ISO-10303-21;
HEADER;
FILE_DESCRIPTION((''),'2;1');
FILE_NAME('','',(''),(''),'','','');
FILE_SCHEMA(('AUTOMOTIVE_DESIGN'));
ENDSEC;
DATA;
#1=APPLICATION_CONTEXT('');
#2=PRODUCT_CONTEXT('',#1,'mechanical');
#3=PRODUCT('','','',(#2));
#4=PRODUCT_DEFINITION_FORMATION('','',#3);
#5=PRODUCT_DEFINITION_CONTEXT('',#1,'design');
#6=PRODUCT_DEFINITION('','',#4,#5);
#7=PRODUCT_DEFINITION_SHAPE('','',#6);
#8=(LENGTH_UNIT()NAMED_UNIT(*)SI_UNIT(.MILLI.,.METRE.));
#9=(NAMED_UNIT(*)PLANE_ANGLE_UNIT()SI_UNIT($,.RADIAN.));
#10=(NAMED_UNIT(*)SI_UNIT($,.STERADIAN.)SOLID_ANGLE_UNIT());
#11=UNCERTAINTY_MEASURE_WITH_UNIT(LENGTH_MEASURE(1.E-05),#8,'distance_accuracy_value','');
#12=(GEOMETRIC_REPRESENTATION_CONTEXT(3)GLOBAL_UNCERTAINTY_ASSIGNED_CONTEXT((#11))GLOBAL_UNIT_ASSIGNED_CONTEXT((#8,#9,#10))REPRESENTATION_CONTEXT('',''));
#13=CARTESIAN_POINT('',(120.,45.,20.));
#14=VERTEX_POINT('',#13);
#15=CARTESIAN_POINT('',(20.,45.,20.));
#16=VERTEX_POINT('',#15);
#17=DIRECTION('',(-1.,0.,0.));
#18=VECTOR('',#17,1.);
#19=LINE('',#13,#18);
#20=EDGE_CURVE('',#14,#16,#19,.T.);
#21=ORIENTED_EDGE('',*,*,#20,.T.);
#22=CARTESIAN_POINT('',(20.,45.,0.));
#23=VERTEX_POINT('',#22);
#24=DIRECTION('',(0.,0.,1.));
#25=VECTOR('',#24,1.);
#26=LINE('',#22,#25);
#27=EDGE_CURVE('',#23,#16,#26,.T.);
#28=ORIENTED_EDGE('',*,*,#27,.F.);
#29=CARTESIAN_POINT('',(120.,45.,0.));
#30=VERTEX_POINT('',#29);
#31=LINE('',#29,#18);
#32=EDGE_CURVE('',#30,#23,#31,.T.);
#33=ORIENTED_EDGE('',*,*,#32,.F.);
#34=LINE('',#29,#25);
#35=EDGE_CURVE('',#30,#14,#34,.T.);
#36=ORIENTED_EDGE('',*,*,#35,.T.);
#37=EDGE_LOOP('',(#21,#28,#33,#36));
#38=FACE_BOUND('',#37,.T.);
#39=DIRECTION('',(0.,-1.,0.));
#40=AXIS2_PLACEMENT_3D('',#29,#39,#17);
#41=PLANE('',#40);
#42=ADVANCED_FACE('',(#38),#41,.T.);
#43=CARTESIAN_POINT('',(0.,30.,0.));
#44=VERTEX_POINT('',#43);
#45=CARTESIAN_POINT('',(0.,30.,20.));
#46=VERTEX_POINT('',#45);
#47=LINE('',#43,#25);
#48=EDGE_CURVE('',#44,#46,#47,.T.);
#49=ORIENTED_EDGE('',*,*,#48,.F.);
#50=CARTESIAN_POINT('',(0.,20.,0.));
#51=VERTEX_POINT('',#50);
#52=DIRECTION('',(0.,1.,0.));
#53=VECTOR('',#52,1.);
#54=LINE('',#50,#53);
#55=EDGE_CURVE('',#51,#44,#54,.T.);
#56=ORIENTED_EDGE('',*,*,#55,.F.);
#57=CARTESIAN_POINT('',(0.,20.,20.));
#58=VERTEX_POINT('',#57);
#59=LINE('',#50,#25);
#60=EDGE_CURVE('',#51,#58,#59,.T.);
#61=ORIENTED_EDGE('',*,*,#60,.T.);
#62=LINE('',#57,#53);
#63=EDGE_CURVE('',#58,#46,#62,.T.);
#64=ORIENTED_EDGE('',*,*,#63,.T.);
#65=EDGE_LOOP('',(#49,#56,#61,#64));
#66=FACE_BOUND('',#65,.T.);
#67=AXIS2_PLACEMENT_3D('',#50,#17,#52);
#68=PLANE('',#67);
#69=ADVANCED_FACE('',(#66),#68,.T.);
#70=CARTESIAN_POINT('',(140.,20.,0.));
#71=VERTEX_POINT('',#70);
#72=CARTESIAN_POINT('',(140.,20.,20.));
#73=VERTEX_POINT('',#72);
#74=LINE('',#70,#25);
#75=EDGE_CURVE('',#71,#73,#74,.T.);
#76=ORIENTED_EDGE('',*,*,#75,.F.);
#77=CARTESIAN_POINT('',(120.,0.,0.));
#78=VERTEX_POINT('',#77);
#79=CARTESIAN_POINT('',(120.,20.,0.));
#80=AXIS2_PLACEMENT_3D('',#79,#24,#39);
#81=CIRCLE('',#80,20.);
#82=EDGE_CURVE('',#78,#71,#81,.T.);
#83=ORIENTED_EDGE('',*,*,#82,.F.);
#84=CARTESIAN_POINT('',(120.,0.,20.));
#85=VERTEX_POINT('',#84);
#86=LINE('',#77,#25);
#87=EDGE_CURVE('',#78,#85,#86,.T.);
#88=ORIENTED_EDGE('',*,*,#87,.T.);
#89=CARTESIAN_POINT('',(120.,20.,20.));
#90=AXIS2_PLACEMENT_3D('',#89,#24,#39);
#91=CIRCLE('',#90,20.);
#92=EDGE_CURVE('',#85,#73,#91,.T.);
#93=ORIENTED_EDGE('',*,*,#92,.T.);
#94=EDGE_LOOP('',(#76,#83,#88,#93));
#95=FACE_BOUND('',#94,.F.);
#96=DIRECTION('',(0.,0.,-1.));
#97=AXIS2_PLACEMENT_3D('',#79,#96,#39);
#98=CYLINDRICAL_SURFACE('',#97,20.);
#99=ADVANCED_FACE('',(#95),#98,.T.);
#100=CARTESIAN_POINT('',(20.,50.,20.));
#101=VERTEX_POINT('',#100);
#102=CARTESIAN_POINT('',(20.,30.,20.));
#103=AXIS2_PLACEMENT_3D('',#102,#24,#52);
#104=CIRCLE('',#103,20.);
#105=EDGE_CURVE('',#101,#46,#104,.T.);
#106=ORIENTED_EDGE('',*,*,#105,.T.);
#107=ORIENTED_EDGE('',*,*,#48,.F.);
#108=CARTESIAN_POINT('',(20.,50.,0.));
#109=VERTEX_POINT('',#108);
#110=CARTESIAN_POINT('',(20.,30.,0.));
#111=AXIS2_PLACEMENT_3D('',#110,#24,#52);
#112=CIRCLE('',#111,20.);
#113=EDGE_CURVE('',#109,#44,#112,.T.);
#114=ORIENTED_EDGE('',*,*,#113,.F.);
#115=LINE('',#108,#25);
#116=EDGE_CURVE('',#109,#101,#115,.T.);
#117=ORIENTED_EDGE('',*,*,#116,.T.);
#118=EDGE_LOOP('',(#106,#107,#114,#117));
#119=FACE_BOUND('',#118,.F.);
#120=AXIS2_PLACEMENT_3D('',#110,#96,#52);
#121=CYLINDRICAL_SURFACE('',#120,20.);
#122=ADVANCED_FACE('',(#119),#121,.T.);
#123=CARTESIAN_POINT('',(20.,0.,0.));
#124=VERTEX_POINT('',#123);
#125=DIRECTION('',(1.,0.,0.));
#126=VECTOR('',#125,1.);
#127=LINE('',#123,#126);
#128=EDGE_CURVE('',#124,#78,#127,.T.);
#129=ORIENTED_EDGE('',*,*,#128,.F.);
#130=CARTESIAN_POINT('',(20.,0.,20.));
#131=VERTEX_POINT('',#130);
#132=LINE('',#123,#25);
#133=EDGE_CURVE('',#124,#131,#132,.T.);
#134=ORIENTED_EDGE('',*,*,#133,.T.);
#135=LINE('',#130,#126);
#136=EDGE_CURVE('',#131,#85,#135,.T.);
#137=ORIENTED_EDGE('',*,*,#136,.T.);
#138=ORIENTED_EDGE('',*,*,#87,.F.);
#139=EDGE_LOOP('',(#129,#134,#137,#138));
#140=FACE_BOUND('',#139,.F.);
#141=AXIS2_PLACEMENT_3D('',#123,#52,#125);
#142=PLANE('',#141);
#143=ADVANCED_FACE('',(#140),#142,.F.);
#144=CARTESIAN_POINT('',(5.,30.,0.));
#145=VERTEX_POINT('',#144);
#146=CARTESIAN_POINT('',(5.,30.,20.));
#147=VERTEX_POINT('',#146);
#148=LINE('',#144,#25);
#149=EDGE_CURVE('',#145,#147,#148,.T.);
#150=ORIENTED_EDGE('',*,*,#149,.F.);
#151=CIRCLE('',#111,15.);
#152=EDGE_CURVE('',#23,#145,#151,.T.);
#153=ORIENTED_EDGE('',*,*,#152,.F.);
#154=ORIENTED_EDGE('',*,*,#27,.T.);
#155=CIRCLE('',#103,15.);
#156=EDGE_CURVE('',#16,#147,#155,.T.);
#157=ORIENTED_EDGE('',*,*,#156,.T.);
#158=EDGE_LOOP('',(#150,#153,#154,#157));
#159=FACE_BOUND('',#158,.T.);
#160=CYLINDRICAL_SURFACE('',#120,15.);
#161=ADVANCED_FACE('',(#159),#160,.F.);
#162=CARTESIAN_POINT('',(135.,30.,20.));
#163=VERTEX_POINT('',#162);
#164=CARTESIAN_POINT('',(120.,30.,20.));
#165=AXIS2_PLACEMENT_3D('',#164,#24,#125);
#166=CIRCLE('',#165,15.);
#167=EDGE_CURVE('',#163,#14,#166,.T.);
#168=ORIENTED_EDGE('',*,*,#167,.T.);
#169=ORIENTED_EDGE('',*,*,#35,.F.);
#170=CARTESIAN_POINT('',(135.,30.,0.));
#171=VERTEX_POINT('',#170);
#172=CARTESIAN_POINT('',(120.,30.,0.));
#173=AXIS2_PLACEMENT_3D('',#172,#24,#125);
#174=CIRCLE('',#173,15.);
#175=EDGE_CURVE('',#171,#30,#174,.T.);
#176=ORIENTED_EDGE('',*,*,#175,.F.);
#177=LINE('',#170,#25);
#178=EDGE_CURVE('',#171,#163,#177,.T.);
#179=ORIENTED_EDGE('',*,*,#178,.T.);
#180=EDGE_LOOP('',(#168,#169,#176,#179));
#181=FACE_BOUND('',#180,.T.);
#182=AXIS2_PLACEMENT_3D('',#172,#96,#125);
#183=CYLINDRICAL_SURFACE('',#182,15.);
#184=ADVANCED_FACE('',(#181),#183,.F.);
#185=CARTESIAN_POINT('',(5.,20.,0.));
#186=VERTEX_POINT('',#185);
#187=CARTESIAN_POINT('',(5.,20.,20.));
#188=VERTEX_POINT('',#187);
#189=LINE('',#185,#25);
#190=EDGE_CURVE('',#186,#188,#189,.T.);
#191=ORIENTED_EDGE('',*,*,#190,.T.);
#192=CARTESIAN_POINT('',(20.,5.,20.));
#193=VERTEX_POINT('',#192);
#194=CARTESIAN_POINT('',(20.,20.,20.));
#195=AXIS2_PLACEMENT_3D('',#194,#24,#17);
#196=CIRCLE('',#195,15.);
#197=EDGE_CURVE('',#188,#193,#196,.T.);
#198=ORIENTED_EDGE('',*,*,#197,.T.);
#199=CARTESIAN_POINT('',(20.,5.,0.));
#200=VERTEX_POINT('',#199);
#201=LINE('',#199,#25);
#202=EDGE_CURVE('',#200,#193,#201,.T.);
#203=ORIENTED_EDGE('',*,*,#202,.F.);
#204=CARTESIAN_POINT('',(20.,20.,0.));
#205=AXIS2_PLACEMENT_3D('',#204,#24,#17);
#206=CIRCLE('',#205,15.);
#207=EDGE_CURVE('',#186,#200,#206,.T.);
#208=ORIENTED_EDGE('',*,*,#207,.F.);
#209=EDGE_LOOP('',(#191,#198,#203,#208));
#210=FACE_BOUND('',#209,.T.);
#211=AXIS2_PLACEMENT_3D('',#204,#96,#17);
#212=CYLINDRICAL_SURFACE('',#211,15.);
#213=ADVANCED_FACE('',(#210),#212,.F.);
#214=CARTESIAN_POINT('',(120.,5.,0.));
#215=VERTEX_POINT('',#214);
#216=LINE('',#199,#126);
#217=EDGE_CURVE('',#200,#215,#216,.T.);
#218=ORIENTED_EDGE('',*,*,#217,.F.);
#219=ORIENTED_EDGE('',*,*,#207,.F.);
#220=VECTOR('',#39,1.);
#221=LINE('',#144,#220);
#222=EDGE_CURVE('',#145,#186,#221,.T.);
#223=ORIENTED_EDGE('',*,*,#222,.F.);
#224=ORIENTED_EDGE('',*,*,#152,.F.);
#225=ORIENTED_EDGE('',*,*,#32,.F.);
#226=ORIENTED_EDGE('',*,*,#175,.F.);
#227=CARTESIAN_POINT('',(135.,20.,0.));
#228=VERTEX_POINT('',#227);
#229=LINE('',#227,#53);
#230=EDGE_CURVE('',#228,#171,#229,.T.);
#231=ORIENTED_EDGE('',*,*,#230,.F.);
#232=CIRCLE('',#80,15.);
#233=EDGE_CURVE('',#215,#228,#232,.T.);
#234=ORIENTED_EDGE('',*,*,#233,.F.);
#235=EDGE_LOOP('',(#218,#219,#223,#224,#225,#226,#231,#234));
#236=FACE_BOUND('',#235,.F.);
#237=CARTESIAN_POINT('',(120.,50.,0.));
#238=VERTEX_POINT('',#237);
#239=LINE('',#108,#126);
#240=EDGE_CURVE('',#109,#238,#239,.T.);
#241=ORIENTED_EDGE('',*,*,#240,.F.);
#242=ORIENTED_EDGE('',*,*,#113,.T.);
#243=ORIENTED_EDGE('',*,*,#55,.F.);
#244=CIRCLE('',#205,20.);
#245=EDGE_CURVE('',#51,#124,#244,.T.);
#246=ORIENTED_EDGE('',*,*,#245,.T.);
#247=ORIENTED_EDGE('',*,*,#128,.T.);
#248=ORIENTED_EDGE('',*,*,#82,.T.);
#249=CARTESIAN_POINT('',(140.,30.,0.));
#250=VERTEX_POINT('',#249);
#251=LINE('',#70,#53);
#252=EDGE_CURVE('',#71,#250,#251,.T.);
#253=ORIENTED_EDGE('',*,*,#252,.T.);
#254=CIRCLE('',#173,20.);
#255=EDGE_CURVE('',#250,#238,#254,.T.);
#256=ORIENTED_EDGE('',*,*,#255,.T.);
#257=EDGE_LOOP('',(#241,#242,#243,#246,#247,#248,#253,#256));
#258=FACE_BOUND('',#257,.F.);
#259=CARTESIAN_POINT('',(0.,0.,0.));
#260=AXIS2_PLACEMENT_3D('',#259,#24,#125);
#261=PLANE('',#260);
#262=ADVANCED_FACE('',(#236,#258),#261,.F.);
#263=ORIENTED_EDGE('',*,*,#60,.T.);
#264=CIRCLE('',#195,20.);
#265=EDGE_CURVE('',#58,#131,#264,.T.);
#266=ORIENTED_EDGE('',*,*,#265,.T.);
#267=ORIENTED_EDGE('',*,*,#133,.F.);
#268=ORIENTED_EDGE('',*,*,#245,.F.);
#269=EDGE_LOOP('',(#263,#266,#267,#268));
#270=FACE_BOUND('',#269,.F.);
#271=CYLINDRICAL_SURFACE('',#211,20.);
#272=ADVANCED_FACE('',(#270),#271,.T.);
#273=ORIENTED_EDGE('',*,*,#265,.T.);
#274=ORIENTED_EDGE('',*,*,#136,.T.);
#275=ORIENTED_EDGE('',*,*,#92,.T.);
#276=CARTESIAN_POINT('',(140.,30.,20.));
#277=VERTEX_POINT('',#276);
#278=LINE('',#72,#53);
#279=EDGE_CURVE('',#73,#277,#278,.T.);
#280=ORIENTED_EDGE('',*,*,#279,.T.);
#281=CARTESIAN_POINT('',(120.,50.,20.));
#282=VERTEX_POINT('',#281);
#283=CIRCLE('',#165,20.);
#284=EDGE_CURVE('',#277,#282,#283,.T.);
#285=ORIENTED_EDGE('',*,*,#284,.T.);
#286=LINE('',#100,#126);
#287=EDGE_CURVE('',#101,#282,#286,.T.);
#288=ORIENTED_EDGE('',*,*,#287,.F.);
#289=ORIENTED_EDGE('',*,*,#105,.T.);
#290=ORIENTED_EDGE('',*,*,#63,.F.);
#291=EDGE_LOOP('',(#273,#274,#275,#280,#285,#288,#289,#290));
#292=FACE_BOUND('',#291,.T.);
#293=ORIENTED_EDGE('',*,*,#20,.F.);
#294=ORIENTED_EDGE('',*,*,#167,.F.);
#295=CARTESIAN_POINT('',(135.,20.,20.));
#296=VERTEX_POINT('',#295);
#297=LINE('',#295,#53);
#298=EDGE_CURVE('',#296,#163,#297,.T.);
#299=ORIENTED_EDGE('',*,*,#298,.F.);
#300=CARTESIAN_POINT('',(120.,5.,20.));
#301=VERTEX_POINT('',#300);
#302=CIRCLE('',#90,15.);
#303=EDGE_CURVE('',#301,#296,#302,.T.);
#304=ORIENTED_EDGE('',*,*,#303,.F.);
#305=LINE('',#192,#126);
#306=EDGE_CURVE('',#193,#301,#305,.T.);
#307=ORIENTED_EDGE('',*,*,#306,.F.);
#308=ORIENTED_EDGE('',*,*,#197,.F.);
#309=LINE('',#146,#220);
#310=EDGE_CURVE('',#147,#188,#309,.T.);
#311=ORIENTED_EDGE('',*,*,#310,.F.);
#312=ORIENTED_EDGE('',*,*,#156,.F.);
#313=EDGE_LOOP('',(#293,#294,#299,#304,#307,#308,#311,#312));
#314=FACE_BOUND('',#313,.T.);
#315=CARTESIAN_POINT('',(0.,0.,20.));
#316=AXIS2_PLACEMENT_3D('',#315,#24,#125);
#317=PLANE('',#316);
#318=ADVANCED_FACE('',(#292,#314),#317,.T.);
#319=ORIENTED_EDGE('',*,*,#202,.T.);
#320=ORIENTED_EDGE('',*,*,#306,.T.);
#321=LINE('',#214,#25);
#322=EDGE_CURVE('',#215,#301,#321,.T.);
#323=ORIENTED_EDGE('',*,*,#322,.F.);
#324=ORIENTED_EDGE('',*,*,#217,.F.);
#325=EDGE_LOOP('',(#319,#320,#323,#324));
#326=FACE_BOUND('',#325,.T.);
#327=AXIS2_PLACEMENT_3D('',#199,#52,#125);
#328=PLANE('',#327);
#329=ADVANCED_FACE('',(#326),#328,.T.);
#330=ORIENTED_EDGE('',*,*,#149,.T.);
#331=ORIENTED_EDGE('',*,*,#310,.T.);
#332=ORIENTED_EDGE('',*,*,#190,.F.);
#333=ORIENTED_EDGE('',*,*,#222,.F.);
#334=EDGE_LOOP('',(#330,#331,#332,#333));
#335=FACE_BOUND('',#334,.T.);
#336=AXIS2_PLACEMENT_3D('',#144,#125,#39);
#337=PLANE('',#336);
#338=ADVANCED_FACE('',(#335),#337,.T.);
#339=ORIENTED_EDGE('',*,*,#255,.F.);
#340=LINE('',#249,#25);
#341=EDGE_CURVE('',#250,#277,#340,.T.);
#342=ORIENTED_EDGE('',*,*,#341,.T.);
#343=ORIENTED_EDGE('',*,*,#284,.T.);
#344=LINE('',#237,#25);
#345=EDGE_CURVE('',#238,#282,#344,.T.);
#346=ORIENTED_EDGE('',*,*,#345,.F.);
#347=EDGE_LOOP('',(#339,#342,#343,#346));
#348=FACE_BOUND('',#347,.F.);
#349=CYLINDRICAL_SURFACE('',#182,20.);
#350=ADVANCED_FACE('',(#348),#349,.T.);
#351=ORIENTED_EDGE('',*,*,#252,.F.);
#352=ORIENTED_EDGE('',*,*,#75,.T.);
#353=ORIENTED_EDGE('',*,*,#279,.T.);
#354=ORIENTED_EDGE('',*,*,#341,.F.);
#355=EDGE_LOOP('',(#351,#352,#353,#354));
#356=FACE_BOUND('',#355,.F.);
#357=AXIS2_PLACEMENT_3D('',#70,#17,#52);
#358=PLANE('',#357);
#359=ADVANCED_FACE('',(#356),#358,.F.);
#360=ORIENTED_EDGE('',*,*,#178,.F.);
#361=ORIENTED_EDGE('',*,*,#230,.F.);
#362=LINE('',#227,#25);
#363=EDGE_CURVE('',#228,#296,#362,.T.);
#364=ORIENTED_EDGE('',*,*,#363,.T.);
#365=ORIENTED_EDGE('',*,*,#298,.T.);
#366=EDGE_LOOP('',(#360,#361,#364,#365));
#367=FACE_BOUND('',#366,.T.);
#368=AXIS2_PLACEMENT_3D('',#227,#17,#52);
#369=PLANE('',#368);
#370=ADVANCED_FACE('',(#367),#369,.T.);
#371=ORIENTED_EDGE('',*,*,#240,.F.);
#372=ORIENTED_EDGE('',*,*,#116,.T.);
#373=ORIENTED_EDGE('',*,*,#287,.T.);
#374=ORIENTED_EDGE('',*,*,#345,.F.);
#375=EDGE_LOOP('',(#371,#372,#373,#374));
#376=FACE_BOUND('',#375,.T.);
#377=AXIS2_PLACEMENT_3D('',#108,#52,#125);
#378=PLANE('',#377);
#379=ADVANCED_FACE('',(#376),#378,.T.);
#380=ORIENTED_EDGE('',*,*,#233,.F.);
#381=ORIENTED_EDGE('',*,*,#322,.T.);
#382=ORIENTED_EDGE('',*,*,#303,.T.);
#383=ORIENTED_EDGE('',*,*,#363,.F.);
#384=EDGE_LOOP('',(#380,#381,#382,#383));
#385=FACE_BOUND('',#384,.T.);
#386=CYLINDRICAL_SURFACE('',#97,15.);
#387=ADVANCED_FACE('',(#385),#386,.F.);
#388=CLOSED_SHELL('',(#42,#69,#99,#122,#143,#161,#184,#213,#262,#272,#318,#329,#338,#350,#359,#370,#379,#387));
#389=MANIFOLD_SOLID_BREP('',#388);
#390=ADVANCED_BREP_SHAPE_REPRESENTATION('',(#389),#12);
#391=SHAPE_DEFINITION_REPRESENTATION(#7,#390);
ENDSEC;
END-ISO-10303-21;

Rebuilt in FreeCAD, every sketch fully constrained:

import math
import FreeCAD as App
import Part
import Sketcher
Q = App.Units.Quantity

doc = App.newDocument("Part")
body = doc.addObject("PartDesign::Body", "Body")

sketch1 = body.newObject("Sketcher::SketchObject", "Sketch")
sketch1.AttachmentSupport = (doc.getObject("XY_Plane"), [""])
sketch1.MapMode = "FlatFace"
sketch1.addGeometry([
    Part.ArcOfCircle(Part.Circle(App.Vector(20, 20, 0), App.Vector(0, 0, 1), 20), math.radians(180), math.radians(270)),
    Part.LineSegment(App.Vector(20, 0, 0), App.Vector(120, 0, 0)),
    Part.ArcOfCircle(Part.Circle(App.Vector(120, 20, 0), App.Vector(0, 0, 1), 20), math.radians(-90), math.radians(0)),
    Part.LineSegment(App.Vector(140, 20, 0), App.Vector(140, 30, 0)),
    Part.ArcOfCircle(Part.Circle(App.Vector(120, 30, 0), App.Vector(0, 0, 1), 20), math.radians(0), math.radians(90)),
    Part.LineSegment(App.Vector(120, 50, 0), App.Vector(20, 50, 0)),
    Part.ArcOfCircle(Part.Circle(App.Vector(20, 30, 0), App.Vector(0, 0, 1), 20), math.radians(90), math.radians(180)),
    Part.LineSegment(App.Vector(0, 30, 0), App.Vector(0, 20, 0)),
    Part.LineSegment(App.Vector(120, 5, 0), App.Vector(20, 5, 0)),
    Part.ArcOfCircle(Part.Circle(App.Vector(20, 20, 0), App.Vector(0, 0, 1), 15), math.radians(180), math.radians(270)),
    Part.LineSegment(App.Vector(5, 20, 0), App.Vector(5, 30, 0)),
    Part.ArcOfCircle(Part.Circle(App.Vector(20, 30, 0), App.Vector(0, 0, 1), 15), math.radians(90), math.radians(180)),
    Part.LineSegment(App.Vector(20, 45, 0), App.Vector(120, 45, 0)),
    Part.ArcOfCircle(Part.Circle(App.Vector(120, 30, 0), App.Vector(0, 0, 1), 15), math.radians(0), math.radians(90)),
    Part.LineSegment(App.Vector(135, 30, 0), App.Vector(135, 20, 0)),
    Part.ArcOfCircle(Part.Circle(App.Vector(120, 20, 0), App.Vector(0, 0, 1), 15), math.radians(-90), math.radians(0)),
], False)
sketch1.addConstraint([
    Sketcher.Constraint("Tangent", 0, 2, 1, 1),
    Sketcher.Constraint("Tangent", 1, 2, 2, 1),
    Sketcher.Constraint("Tangent", 2, 2, 3, 1),
    Sketcher.Constraint("Tangent", 3, 2, 4, 1),
    Sketcher.Constraint("Tangent", 4, 2, 5, 1),
    Sketcher.Constraint("Tangent", 5, 2, 6, 1),
    Sketcher.Constraint("Tangent", 6, 2, 7, 1),
    Sketcher.Constraint("Tangent", 7, 2, 0, 1),
    Sketcher.Constraint("Tangent", 8, 2, 9, 2),
    Sketcher.Constraint("Tangent", 9, 1, 10, 1),
    Sketcher.Constraint("Tangent", 10, 2, 11, 2),
    Sketcher.Constraint("Tangent", 11, 1, 12, 1),
    Sketcher.Constraint("Tangent", 12, 2, 13, 2),
    Sketcher.Constraint("Tangent", 13, 1, 14, 1),
    Sketcher.Constraint("Tangent", 14, 2, 15, 2),
    Sketcher.Constraint("Tangent", 15, 1, 8, 1),
    Sketcher.Constraint("Horizontal", 1),
    Sketcher.Constraint("Vertical", 3),
    Sketcher.Constraint("Horizontal", 5),
    Sketcher.Constraint("Vertical", 7),
    Sketcher.Constraint("Horizontal", 8),
    Sketcher.Constraint("Vertical", 10),
    Sketcher.Constraint("Horizontal", 12),
    Sketcher.Constraint("Vertical", 14),
    Sketcher.Constraint("Coincident", 9, 3, 0, 3),
    Sketcher.Constraint("Coincident", 11, 3, 6, 3),
    Sketcher.Constraint("Coincident", 13, 3, 4, 3),
    Sketcher.Constraint("Equal", 0, 2),
    Sketcher.Constraint("Equal", 2, 4),
    Sketcher.Constraint("Equal", 4, 6),
    Sketcher.Constraint("Equal", 13, 15),
    Sketcher.Constraint("PointOnObject", 0, 2, -1),
    Sketcher.Constraint("PointOnObject", 6, 2, -2),
    Sketcher.Constraint("Radius", 0, Q("0.7874 in")),
    Sketcher.Constraint("DistanceX", 1, 1, 1, 2, Q("3.937 in")),
    Sketcher.Constraint("Radius", 9, 15.0),
    Sketcher.Constraint("DistanceY", 3, 1, 3, 2, Q("0.3937 in")),
])
pad1 = body.newObject("PartDesign::Pad", "Pad")
pad1.Profile = sketch1
pad1.Length = Q("0.7874016 in")

doc.recompute()
